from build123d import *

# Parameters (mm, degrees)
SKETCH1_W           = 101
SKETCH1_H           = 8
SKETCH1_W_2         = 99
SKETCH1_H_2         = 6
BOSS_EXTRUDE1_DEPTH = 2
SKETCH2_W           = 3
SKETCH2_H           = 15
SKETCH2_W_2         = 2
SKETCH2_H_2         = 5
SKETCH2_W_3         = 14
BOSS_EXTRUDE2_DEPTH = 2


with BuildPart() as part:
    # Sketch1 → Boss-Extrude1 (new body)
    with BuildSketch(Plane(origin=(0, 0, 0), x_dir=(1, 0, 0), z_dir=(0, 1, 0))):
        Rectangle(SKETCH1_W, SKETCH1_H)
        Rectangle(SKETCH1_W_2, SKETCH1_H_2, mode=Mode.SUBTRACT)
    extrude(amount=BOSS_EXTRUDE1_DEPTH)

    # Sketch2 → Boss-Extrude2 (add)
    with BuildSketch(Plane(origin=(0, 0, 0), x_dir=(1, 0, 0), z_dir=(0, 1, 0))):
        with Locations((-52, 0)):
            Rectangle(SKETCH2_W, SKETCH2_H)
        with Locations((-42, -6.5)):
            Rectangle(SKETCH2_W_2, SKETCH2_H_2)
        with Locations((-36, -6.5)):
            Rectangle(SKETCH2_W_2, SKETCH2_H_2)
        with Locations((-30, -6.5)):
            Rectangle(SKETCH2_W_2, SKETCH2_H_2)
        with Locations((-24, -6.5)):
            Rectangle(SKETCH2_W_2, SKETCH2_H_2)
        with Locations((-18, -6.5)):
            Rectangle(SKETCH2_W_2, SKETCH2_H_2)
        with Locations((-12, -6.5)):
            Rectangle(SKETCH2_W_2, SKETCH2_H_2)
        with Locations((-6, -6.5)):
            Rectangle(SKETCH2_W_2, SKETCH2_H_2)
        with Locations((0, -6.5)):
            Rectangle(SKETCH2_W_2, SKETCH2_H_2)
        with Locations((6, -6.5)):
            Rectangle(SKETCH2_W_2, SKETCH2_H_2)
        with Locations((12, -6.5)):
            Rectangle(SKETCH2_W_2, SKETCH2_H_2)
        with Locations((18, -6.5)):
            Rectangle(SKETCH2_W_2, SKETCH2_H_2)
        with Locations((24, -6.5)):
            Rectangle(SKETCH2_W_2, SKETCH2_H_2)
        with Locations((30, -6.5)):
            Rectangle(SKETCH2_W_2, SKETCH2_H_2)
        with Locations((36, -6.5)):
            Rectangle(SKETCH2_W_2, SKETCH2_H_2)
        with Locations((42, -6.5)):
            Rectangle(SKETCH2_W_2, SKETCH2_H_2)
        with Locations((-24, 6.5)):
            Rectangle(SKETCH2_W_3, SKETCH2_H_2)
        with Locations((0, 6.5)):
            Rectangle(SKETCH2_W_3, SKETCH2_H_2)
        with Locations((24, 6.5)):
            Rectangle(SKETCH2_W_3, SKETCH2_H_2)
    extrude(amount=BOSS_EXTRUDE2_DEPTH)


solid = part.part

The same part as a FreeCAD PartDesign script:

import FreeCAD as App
import Part
import Sketcher
from FreeCAD import Vector
Q = App.Units.Quantity

doc = App.newDocument("Part")
body = doc.addObject("PartDesign::Body", "Body")

sketch1 = body.newObject("Sketcher::SketchObject", "Sketch")
sketch1.AttachmentSupport = (doc.getObject("XZ_Plane"), [""])
sketch1.MapMode = "FlatFace"
sketch1.addGeometry(Part.LineSegment(Vector(-50, -4, 0), Vector(-50, 4, 0)), False)
sketch1.addGeometry(Part.LineSegment(Vector(-50, 4, 0), Vector(50, 4, 0)), False)
sketch1.addGeometry(Part.LineSegment(Vector(50, 4, 0), Vector(50, -4, 0)), False)
sketch1.addGeometry(Part.LineSegment(Vector(50, -4, 0), Vector(-50, -4, 0)), False)
sketch1.addGeometry(Part.LineSegment(Vector(50, 3, 0), Vector(-50, 3, 0)), False)
sketch1.addGeometry(Part.LineSegment(Vector(-50, 3, 0), Vector(-50, -3, 0)), False)
sketch1.addGeometry(Part.LineSegment(Vector(-50, -3, 0), Vector(50, -3, 0)), False)
sketch1.addGeometry(Part.LineSegment(Vector(50, -3, 0), Vector(50, 3, 0)), False)
sketch1.addConstraint(Sketcher.Constraint("Coincident", 0, 2, 1, 1))
sketch1.addConstraint(Sketcher.Constraint("Coincident", 1, 2, 2, 1))
sketch1.addConstraint(Sketcher.Constraint("Coincident", 2, 2, 3, 1))
sketch1.addConstraint(Sketcher.Constraint("Coincident", 3, 2, 0, 1))
sketch1.addConstraint(Sketcher.Constraint("Coincident", 4, 2, 5, 1))
sketch1.addConstraint(Sketcher.Constraint("Coincident", 5, 2, 6, 1))
sketch1.addConstraint(Sketcher.Constraint("Coincident", 6, 2, 7, 1))
sketch1.addConstraint(Sketcher.Constraint("Coincident", 7, 2, 4, 1))
sketch1.addConstraint(Sketcher.Constraint("Vertical", 0))
sketch1.addConstraint(Sketcher.Constraint("Horizontal", 1))
sketch1.addConstraint(Sketcher.Constraint("Vertical", 2))
sketch1.addConstraint(Sketcher.Constraint("Horizontal", 3))
sketch1.addConstraint(Sketcher.Constraint("Horizontal", 4))
sketch1.addConstraint(Sketcher.Constraint("Vertical", 5))
sketch1.addConstraint(Sketcher.Constraint("Horizontal", 6))
sketch1.addConstraint(Sketcher.Constraint("Vertical", 7))
sketch1.addConstraint(Sketcher.Constraint("Symmetric", 0, 2, 2, 2, -1, 1))
sketch1.addConstraint(Sketcher.Constraint("Symmetric", 4, 2, 6, 2, -1, 1))
sketch1.addConstraint(Sketcher.Constraint("DistanceX", 1, 1, 1, 2, Q("101 mm")))
sketch1.addConstraint(Sketcher.Constraint("DistanceX", 4, 2, 4, 1, Q("99 mm")))
sketch1.addConstraint(Sketcher.Constraint("DistanceY", 0, 1, 0, 2, Q("8 mm")))
sketch1.addConstraint(Sketcher.Constraint("DistanceY", 5, 2, 5, 1, Q("6 mm")))
pad1 = body.newObject("PartDesign::Pad", "Pad")
pad1.Profile = sketch1
pad1.Length = 2
pad1.Reversed = True

sketch2 = body.newObject("Sketcher::SketchObject", "Sketch001")
sketch2.AttachmentSupport = (doc.getObject("XZ_Plane"), [""])
sketch2.MapMode = "FlatFace"
sketch2.addGeometry(Part.LineSegment(Vector(-53.5, -7.5, 0), Vector(-53.5, 7.5, 0)), False)
sketch2.addGeometry(Part.LineSegment(Vector(-53.5, 7.5, 0), Vector(-50.5, 7.5, 0)), False)
sketch2.addGeometry(Part.LineSegment(Vector(-50.5, 7.5, 0), Vector(-50.5, -7.5, 0)), False)
sketch2.addGeometry(Part.LineSegment(Vector(-50.5, -7.5, 0), Vector(-53.5, -7.5, 0)), False)
sketch2.addGeometry(Part.LineSegment(Vector(-43, 4, 0), Vector(-43, 9, 0)), False)
sketch2.addGeometry(Part.LineSegment(Vector(-43, 9, 0), Vector(-41, 9, 0)), False)
sketch2.addGeometry(Part.LineSegment(Vector(-41, 9, 0), Vector(-41, 4, 0)), False)
sketch2.addGeometry(Part.LineSegment(Vector(-41, 4, 0), Vector(-43, 4, 0)), False)
sketch2.addGeometry(Part.LineSegment(Vector(-37, 4, 0), Vector(-37, 9, 0)), False)
sketch2.addGeometry(Part.LineSegment(Vector(-37, 9, 0), Vector(-35, 9, 0)), False)
sketch2.addGeometry(Part.LineSegment(Vector(-35, 9, 0), Vector(-35, 4, 0)), False)
sketch2.addGeometry(Part.LineSegment(Vector(-35, 4, 0), Vector(-37, 4, 0)), False)
sketch2.addGeometry(Part.LineSegment(Vector(-31, 4, 0), Vector(-31, 9, 0)), False)
sketch2.addGeometry(Part.LineSegment(Vector(-31, 9, 0), Vector(-29, 9, 0)), False)
sketch2.addGeometry(Part.LineSegment(Vector(-29, 9, 0), Vector(-29, 4, 0)), False)
sketch2.addGeometry(Part.LineSegment(Vector(-29, 4, 0), Vector(-31, 4, 0)), False)
sketch2.addGeometry(Part.LineSegment(Vector(-25, 4, 0), Vector(-25, 9, 0)), False)
sketch2.addGeometry(Part.LineSegment(Vector(-25, 9, 0), Vector(-23, 9, 0)), False)
sketch2.addGeometry(Part.LineSegment(Vector(-23, 9, 0), Vector(-23, 4, 0)), False)
sketch2.addGeometry(Part.LineSegment(Vector(-23, 4, 0), Vector(-25, 4, 0)), False)
sketch2.addGeometry(Part.LineSegment(Vector(-19, 4, 0), Vector(-19, 9, 0)), False)
sketch2.addGeometry(Part.LineSegment(Vector(-19, 9, 0), Vector(-17, 9, 0)), False)
sketch2.addGeometry(Part.LineSegment(Vector(-17, 9, 0), Vector(-17, 4, 0)), False)
sketch2.addGeometry(Part.LineSegment(Vector(-17, 4, 0), Vector(-19, 4, 0)), False)
sketch2.addGeometry(Part.LineSegment(Vector(-13, 4, 0), Vector(-13, 9, 0)), False)
sketch2.addGeometry(Part.LineSegment(Vector(-13, 9, 0), Vector(-11, 9, 0)), False)
sketch2.addGeometry(Part.LineSegment(Vector(-11, 9, 0), Vector(-11, 4, 0)), False)
sketch2.addGeometry(Part.LineSegment(Vector(-11, 4, 0), Vector(-13, 4, 0)), False)
sketch2.addGeometry(Part.LineSegment(Vector(-7, 4, 0), Vector(-7, 9, 0)), False)
sketch2.addGeometry(Part.LineSegment(Vector(-7, 9, 0), Vector(-5, 9, 0)), False)
sketch2.addGeometry(Part.LineSegment(Vector(-5, 9, 0), Vector(-5, 4, 0)), False)
sketch2.addGeometry(Part.LineSegment(Vector(-5, 4, 0), Vector(-7, 4, 0)), False)
sketch2.addGeometry(Part.LineSegment(Vector(-1, 4, 0), Vector(-1, 9, 0)), False)
sketch2.addGeometry(Part.LineSegment(Vector(-1, 9, 0), Vector(1, 9, 0)), False)
sketch2.addGeometry(Part.LineSegment(Vector(1, 9, 0), Vector(1, 4, 0)), False)
sketch2.addGeometry(Part.LineSegment(Vector(1, 4, 0), Vector(-1, 4, 0)), False)
sketch2.addGeometry(Part.LineSegment(Vector(5, 4, 0), Vector(5, 9, 0)), False)
sketch2.addGeometry(Part.LineSegment(Vector(5, 9, 0), Vector(7, 9, 0)), False)
sketch2.addGeometry(Part.LineSegment(Vector(7, 9, 0), Vector(7, 4, 0)), False)
sketch2.addGeometry(Part.LineSegment(Vector(7, 4, 0), Vector(5, 4, 0)), False)
sketch2.addGeometry(Part.LineSegment(Vector(11, 4, 0), Vector(11, 9, 0)), False)
sketch2.addGeometry(Part.LineSegment(Vector(11, 9, 0), Vector(13, 9, 0)), False)
sketch2.addGeometry(Part.LineSegment(Vector(13, 9, 0), Vector(13, 4, 0)), False)
sketch2.addGeometry(Part.LineSegment(Vector(13, 4, 0), Vector(11, 4, 0)), False)
sketch2.addGeometry(Part.LineSegment(Vector(17, 4, 0), Vector(17, 9, 0)), False)
sketch2.addGeometry(Part.LineSegment(Vector(17, 9, 0), Vector(19, 9, 0)), False)
sketch2.addGeometry(Part.LineSegment(Vector(19, 9, 0), Vector(19, 4, 0)), False)
sketch2.addGeometry(Part.LineSegment(Vector(19, 4, 0), Vector(17, 4, 0)), False)
sketch2.addGeometry(Part.LineSegment(Vector(23, 4, 0), Vector(23, 9, 0)), False)
sketch2.addGeometry(Part.LineSegment(Vector(23, 9, 0), Vector(25, 9, 0)), False)
sketch2.addGeometry(Part.LineSegment(Vector(25, 9, 0), Vector(25, 4, 0)), False)
sketch2.addGeometry(Part.LineSegment(Vector(25, 4, 0), Vector(23, 4, 0)), False)
sketch2.addGeometry(Part.LineSegment(Vector(29, 4, 0), Vector(29, 9, 0)), False)
sketch2.addGeometry(Part.LineSegment(Vector(29, 9, 0), Vector(31, 9, 0)), False)
sketch2.addGeometry(Part.LineSegment(Vector(31, 9, 0), Vector(31, 4, 0)), False)
sketch2.addGeometry(Part.LineSegment(Vector(31, 4, 0), Vector(29, 4, 0)), False)
sketch2.addGeometry(Part.LineSegment(Vector(35, 4, 0), Vector(35, 9, 0)), False)
sketch2.addGeometry(Part.LineSegment(Vector(35, 9, 0), Vector(37, 9, 0)), False)
sketch2.addGeometry(Part.LineSegment(Vector(37, 9, 0), Vector(37, 4, 0)), False)
sketch2.addGeometry(Part.LineSegment(Vector(37, 4, 0), Vector(35, 4, 0)), False)
sketch2.addGeometry(Part.LineSegment(Vector(41, 4, 0), Vector(41, 9, 0)), False)
sketch2.addGeometry(Part.LineSegment(Vector(41, 9, 0), Vector(43, 9, 0)), False)
sketch2.addGeometry(Part.LineSegment(Vector(43, 9, 0), Vector(43, 4, 0)), False)
sketch2.addGeometry(Part.LineSegment(Vector(43, 4, 0), Vector(41, 4, 0)), False)
sketch2.addGeometry(Part.LineSegment(Vector(-31, -9, 0), Vector(-31, -4, 0)), False)
sketch2.addGeometry(Part.LineSegment(Vector(-31, -4, 0), Vector(-17, -4, 0)), False)
sketch2.addGeometry(Part.LineSegment(Vector(-17, -4, 0), Vector(-17, -9, 0)), False)
sketch2.addGeometry(Part.LineSegment(Vector(-17, -9, 0), Vector(-31, -9, 0)), False)
sketch2.addGeometry(Part.LineSegment(Vector(-7, -9, 0), Vector(-7, -4, 0)), False)
sketch2.addGeometry(Part.LineSegment(Vector(-7, -4, 0), Vector(7, -4, 0)), False)
sketch2.addGeometry(Part.LineSegment(Vector(7, -4, 0), Vector(7, -9, 0)), False)
sketch2.addGeometry(Part.LineSegment(Vector(7, -9, 0), Vector(-7, -9, 0)), False)
sketch2.addGeometry(Part.LineSegment(Vector(17, -9, 0), Vector(17, -4, 0)), False)
sketch2.addGeometry(Part.LineSegment(Vector(17, -4, 0), Vector(31, -4, 0)), False)
sketch2.addGeometry(Part.LineSegment(Vector(31, -4, 0), Vector(31, -9, 0)), False)
sketch2.addGeometry(Part.LineSegment(Vector(31, -9, 0), Vector(17, -9, 0)), False)
sketch2.addConstraint(Sketcher.Constraint("Coincident", 0, 2, 1, 1))
sketch2.addConstraint(Sketcher.Constraint("Coincident", 1, 2, 2, 1))
sketch2.addConstraint(Sketcher.Constraint("Coincident", 2, 2, 3, 1))
sketch2.addConstraint(Sketcher.Constraint("Coincident", 3, 2, 0, 1))
sketch2.addConstraint(Sketcher.Constraint("Coincident", 4, 2, 5, 1))
sketch2.addConstraint(Sketcher.Constraint("Coincident", 5, 2, 6, 1))
sketch2.addConstraint(Sketcher.Constraint("Coincident", 6, 2, 7, 1))
sketch2.addConstraint(Sketcher.Constraint("Coincident", 7, 2, 4, 1))
sketch2.addConstraint(Sketcher.Constraint("Coincident", 8, 2, 9, 1))
sketch2.addConstraint(Sketcher.Constraint("Coincident", 9, 2, 10, 1))
sketch2.addConstraint(Sketcher.Constraint("Coincident", 10, 2, 11, 1))
sketch2.addConstraint(Sketcher.Constraint("Coincident", 11, 2, 8, 1))
sketch2.addConstraint(Sketcher.Constraint("Coincident", 12, 2, 13, 1))
sketch2.addConstraint(Sketcher.Constraint("Coincident", 13, 2, 14, 1))
sketch2.addConstraint(Sketcher.Constraint("Coincident", 14, 2, 15, 1))
sketch2.addConstraint(Sketcher.Constraint("Coincident", 15, 2, 12, 1))
sketch2.addConstraint(Sketcher.Constraint("Coincident", 16, 2, 17, 1))
sketch2.addConstraint(Sketcher.Constraint("Coincident", 17, 2, 18, 1))
sketch2.addConstraint(Sketcher.Constraint("Coincident", 18, 2, 19, 1))
sketch2.addConstraint(Sketcher.Constraint("Coincident", 19, 2, 16, 1))
sketch2.addConstraint(Sketcher.Constraint("Coincident", 20, 2, 21, 1))
sketch2.addConstraint(Sketcher.Constraint("Coincident", 21, 2, 22, 1))
sketch2.addConstraint(Sketcher.Constraint("Coincident", 22, 2, 23, 1))
sketch2.addConstraint(Sketcher.Constraint("Coincident", 23, 2, 20, 1))
sketch2.addConstraint(Sketcher.Constraint("Coincident", 24, 2, 25, 1))
sketch2.addConstraint(Sketcher.Constraint("Coincident", 25, 2, 26, 1))
sketch2.addConstraint(Sketcher.Constraint("Coincident", 26, 2, 27, 1))
sketch2.addConstraint(Sketcher.Constraint("Coincident", 27, 2, 24, 1))
sketch2.addConstraint(Sketcher.Constraint("Coincident", 28, 2, 29, 1))
sketch2.addConstraint(Sketcher.Constraint("Coincident", 29, 2, 30, 1))
sketch2.addConstraint(Sketcher.Constraint("Coincident", 30, 2, 31, 1))
sketch2.addConstraint(Sketcher.Constraint("Coincident", 31, 2, 28, 1))
sketch2.addConstraint(Sketcher.Constraint("Coincident", 32, 2, 33, 1))
sketch2.addConstraint(Sketcher.Constraint("Coincident", 33, 2, 34, 1))
sketch2.addConstraint(Sketcher.Constraint("Coincident", 34, 2, 35, 1))
sketch2.addConstraint(Sketcher.Constraint("Coincident", 35, 2, 32, 1))
sketch2.addConstraint(Sketcher.Constraint("Coincident", 36, 2, 37, 1))
sketch2.addConstraint(Sketcher.Constraint("Coincident", 37, 2, 38, 1))
sketch2.addConstraint(Sketcher.Constraint("Coincident", 38, 2, 39, 1))
sketch2.addConstraint(Sketcher.Constraint("Coincident", 39, 2, 36, 1))
sketch2.addConstraint(Sketcher.Constraint("Coincident", 40, 2, 41, 1))
sketch2.addConstraint(Sketcher.Constraint("Coincident", 41, 2, 42, 1))
sketch2.addConstraint(Sketcher.Constraint("Coincident", 42, 2, 43, 1))
sketch2.addConstraint(Sketcher.Constraint("Coincident", 43, 2, 40, 1))
sketch2.addConstraint(Sketcher.Constraint("Coincident", 44, 2, 45, 1))
sketch2.addConstraint(Sketcher.Constraint("Coincident", 45, 2, 46, 1))
sketch2.addConstraint(Sketcher.Constraint("Coincident", 46, 2, 47, 1))
sketch2.addConstraint(Sketcher.Constraint("Coincident", 47, 2, 44, 1))
sketch2.addConstraint(Sketcher.Constraint("Coincident", 48, 2, 49, 1))
sketch2.addConstraint(Sketcher.Constraint("Coincident", 49, 2, 50, 1))
sketch2.addConstraint(Sketcher.Constraint("Coincident", 50, 2, 51, 1))
sketch2.addConstraint(Sketcher.Constraint("Coincident", 51, 2, 48, 1))
sketch2.addConstraint(Sketcher.Constraint("Coincident", 52, 2, 53, 1))
sketch2.addConstraint(Sketcher.Constraint("Coincident", 53, 2, 54, 1))
sketch2.addConstraint(Sketcher.Constraint("Coincident", 54, 2, 55, 1))
sketch2.addConstraint(Sketcher.Constraint("Coincident", 55, 2, 52, 1))
sketch2.addConstraint(Sketcher.Constraint("Coincident", 56, 2, 57, 1))
sketch2.addConstraint(Sketcher.Constraint("Coincident", 57, 2, 58, 1))
sketch2.addConstraint(Sketcher.Constraint("Coincident", 58, 2, 59, 1))
sketch2.addConstraint(Sketcher.Constraint("Coincident", 59, 2, 56, 1))
sketch2.addConstraint(Sketcher.Constraint("Coincident", 60, 2, 61, 1))
sketch2.addConstraint(Sketcher.Constraint("Coincident", 61, 2, 62, 1))
sketch2.addConstraint(Sketcher.Constraint("Coincident", 62, 2, 63, 1))
sketch2.addConstraint(Sketcher.Constraint("Coincident", 63, 2, 60, 1))
sketch2.addConstraint(Sketcher.Constraint("Coincident", 64, 2, 65, 1))
sketch2.addConstraint(Sketcher.Constraint("Coincident", 65, 2, 66, 1))
sketch2.addConstraint(Sketcher.Constraint("Coincident", 66, 2, 67, 1))
sketch2.addConstraint(Sketcher.Constraint("Coincident", 67, 2, 64, 1))
sketch2.addConstraint(Sketcher.Constraint("Coincident", 68, 2, 69, 1))
sketch2.addConstraint(Sketcher.Constraint("Coincident", 69, 2, 70, 1))
sketch2.addConstraint(Sketcher.Constraint("Coincident", 70, 2, 71, 1))
sketch2.addConstraint(Sketcher.Constraint("Coincident", 71, 2, 68, 1))
sketch2.addConstraint(Sketcher.Constraint("Coincident", 72, 2, 73, 1))
sketch2.addConstraint(Sketcher.Constraint("Coincident", 73, 2, 74, 1))
sketch2.addConstraint(Sketcher.Constraint("Coincident", 74, 2, 75, 1))
sketch2.addConstraint(Sketcher.Constraint("Coincident", 75, 2, 72, 1))
sketch2.addConstraint(Sketcher.Constraint("Vertical", 0))
sketch2.addConstraint(Sketcher.Constraint("Horizontal", 1))
sketch2.addConstraint(Sketcher.Constraint("Vertical", 2))
sketch2.addConstraint(Sketcher.Constraint("Horizontal", 3))
sketch2.addConstraint(Sketcher.Constraint("Vertical", 4))
sketch2.addConstraint(Sketcher.Constraint("Horizontal", 5))
sketch2.addConstraint(Sketcher.Constraint("Vertical", 6))
sketch2.addConstraint(Sketcher.Constraint("Horizontal", 7))
sketch2.addConstraint(Sketcher.Constraint("Vertical", 8))
sketch2.addConstraint(Sketcher.Constraint("Horizontal", 9))
sketch2.addConstraint(Sketcher.Constraint("Vertical", 10))
sketch2.addConstraint(Sketcher.Constraint("Horizontal", 11))
sketch2.addConstraint(Sketcher.Constraint("Vertical", 12))
sketch2.addConstraint(Sketcher.Constraint("Horizontal", 13))
sketch2.addConstraint(Sketcher.Constraint("Vertical", 14))
sketch2.addConstraint(Sketcher.Constraint("Horizontal", 15))
sketch2.addConstraint(Sketcher.Constraint("Vertical", 16))
sketch2.addConstraint(Sketcher.Constraint("Horizontal", 17))
sketch2.addConstraint(Sketcher.Constraint("Vertical", 18))
sketch2.addConstraint(Sketcher.Constraint("Horizontal", 19))
sketch2.addConstraint(Sketcher.Constraint("Vertical", 20))
sketch2.addConstraint(Sketcher.Constraint("Horizontal", 21))
sketch2.addConstraint(Sketcher.Constraint("Vertical", 22))
sketch2.addConstraint(Sketcher.Constraint("Horizontal", 23))
sketch2.addConstraint(Sketcher.Constraint("Vertical", 24))
sketch2.addConstraint(Sketcher.Constraint("Horizontal", 25))
sketch2.addConstraint(Sketcher.Constraint("Vertical", 26))
sketch2.addConstraint(Sketcher.Constraint("Horizontal", 27))
sketch2.addConstraint(Sketcher.Constraint("Vertical", 28))
sketch2.addConstraint(Sketcher.Constraint("Horizontal", 29))
sketch2.addConstraint(Sketcher.Constraint("Vertical", 30))
sketch2.addConstraint(Sketcher.Constraint("Horizontal", 31))
sketch2.addConstraint(Sketcher.Constraint("Vertical", 32))
sketch2.addConstraint(Sketcher.Constraint("Horizontal", 33))
sketch2.addConstraint(Sketcher.Constraint("Vertical", 34))
sketch2.addConstraint(Sketcher.Constraint("Horizontal", 35))
sketch2.addConstraint(Sketcher.Constraint("Vertical", 36))
sketch2.addConstraint(Sketcher.Constraint("Horizontal", 37))
sketch2.addConstraint(Sketcher.Constraint("Vertical", 38))
sketch2.addConstraint(Sketcher.Constraint("Horizontal", 39))
sketch2.addConstraint(Sketcher.Constraint("Vertical", 40))
sketch2.addConstraint(Sketcher.Constraint("Horizontal", 41))
sketch2.addConstraint(Sketcher.Constraint("Vertical", 42))
sketch2.addConstraint(Sketcher.Constraint("Horizontal", 43))
sketch2.addConstraint(Sketcher.Constraint("Vertical", 44))
sketch2.addConstraint(Sketcher.Constraint("Horizontal", 45))
sketch2.addConstraint(Sketcher.Constraint("Vertical", 46))
sketch2.addConstraint(Sketcher.Constraint("Horizontal", 47))
sketch2.addConstraint(Sketcher.Constraint("Vertical", 48))
sketch2.addConstraint(Sketcher.Constraint("Horizontal", 49))
sketch2.addConstraint(Sketcher.Constraint("Vertical", 50))
sketch2.addConstraint(Sketcher.Constraint("Horizontal", 51))
sketch2.addConstraint(Sketcher.Constraint("Vertical", 52))
sketch2.addConstraint(Sketcher.Constraint("Horizontal", 53))
sketch2.addConstraint(Sketcher.Constraint("Vertical", 54))
sketch2.addConstraint(Sketcher.Constraint("Horizontal", 55))
sketch2.addConstraint(Sketcher.Constraint("Vertical", 56))
sketch2.addConstraint(Sketcher.Constraint("Horizontal", 57))
sketch2.addConstraint(Sketcher.Constraint("Vertical", 58))
sketch2.addConstraint(Sketcher.Constraint("Horizontal", 59))
sketch2.addConstraint(Sketcher.Constraint("Vertical", 60))
sketch2.addConstraint(Sketcher.Constraint("Horizontal", 61))
sketch2.addConstraint(Sketcher.Constraint("Vertical", 62))
sketch2.addConstraint(Sketcher.Constraint("Horizontal", 63))
sketch2.addConstraint(Sketcher.Constraint("Vertical", 64))
sketch2.addConstraint(Sketcher.Constraint("Horizontal", 65))
sketch2.addConstraint(Sketcher.Constraint("Vertical", 66))
sketch2.addConstraint(Sketcher.Constraint("Horizontal", 67))
sketch2.addConstraint(Sketcher.Constraint("Vertical", 68))
sketch2.addConstraint(Sketcher.Constraint("Horizontal", 69))
sketch2.addConstraint(Sketcher.Constraint("Vertical", 70))
sketch2.addConstraint(Sketcher.Constraint("Horizontal", 71))
sketch2.addConstraint(Sketcher.Constraint("Vertical", 72))
sketch2.addConstraint(Sketcher.Constraint("Horizontal", 73))
sketch2.addConstraint(Sketcher.Constraint("Vertical", 74))
sketch2.addConstraint(Sketcher.Constraint("Horizontal", 75))
sketch2.addConstraint(Sketcher.Constraint("Symmetric", 54, 2, 64, 2, -1, 1))
sketch2.addConstraint(Sketcher.Constraint("Symmetric", 47, 2, 65, 2, -1, 1))
sketch2.addConstraint(Sketcher.Constraint("Symmetric", 38, 2, 68, 2, -1, 1))
sketch2.addConstraint(Sketcher.Constraint("Symmetric", 31, 2, 69, 2, -1, 1))
sketch2.addConstraint(Sketcher.Constraint("Symmetric", 22, 2, 72, 2, -1, 1))
sketch2.addConstraint(Sketcher.Constraint("Symmetric", 15, 2, 73, 2, -1, 1))
sketch2.addConstraint(Sketcher.Constraint("Symmetric", 29, 2, 36, 2, -2))
sketch2.addConstraint(Sketcher.Constraint("Symmetric", 25, 2, 40, 2, -2))
sketch2.addConstraint(Sketcher.Constraint("Symmetric", 27, 2, 42, 2, -2))
sketch2.addConstraint(Sketcher.Constraint("Symmetric", 21, 2, 44, 2, -2))
sketch2.addConstraint(Sketcher.Constraint("Symmetric", 23, 2, 46, 2, -2))
sketch2.addConstraint(Sketcher.Constraint("Symmetric", 17, 2, 48, 2, -2))
sketch2.addConstraint(Sketcher.Constraint("Symmetric", 19, 2, 50, 2, -2))
sketch2.addConstraint(Sketcher.Constraint("Symmetric", 13, 2, 52, 2, -2))
sketch2.addConstraint(Sketcher.Constraint("Symmetric", 9, 2, 56, 2, -2))
sketch2.addConstraint(Sketcher.Constraint("Symmetric", 11, 2, 58, 2, -2))
sketch2.addConstraint(Sketcher.Constraint("Symmetric", 5, 2, 60, 2, -2))
sketch2.addConstraint(Sketcher.Constraint("Symmetric", 7, 2, 62, 2, -2))
sketch2.addConstraint(Sketcher.Constraint("Symmetric", 67, 2, 74, 2, -2))
sketch2.addConstraint(Sketcher.Constraint("Symmetric", 37, 2, 70, 2, -1))
sketch2.addConstraint(Sketcher.Constraint("Horizontal", 5, 2, 8, 2))
sketch2.addConstraint(Sketcher.Constraint("Horizontal", 7, 2, 10, 2))
sketch2.addConstraint(Sketcher.Constraint("Horizontal", 9, 2, 12, 2))
sketch2.addConstraint(Sketcher.Constraint("Horizontal", 11, 2, 14, 2))
sketch2.addConstraint(Sketcher.Constraint("Horizontal", 13, 2, 16, 2))
sketch2.addConstraint(Sketcher.Constraint("Horizontal", 15, 2, 18, 2))
sketch2.addConstraint(Sketcher.Constraint("Horizontal", 17, 2, 20, 2))
sketch2.addConstraint(Sketcher.Constraint("Horizontal", 21, 2, 24, 2))
sketch2.addConstraint(Sketcher.Constraint("Horizontal", 23, 2, 26, 2))
sketch2.addConstraint(Sketcher.Constraint("Horizontal", 25, 2, 28, 2))
sketch2.addConstraint(Sketcher.Constraint("Horizontal", 27, 2, 30, 2))
sketch2.addConstraint(Sketcher.Constraint("Horizontal", 29, 2, 32, 2))
sketch2.addConstraint(Sketcher.Constraint("Horizontal", 31, 2, 34, 2))
sketch2.addConstraint(Sketcher.Constraint("Horizontal", 67, 2, 70, 2))
sketch2.addConstraint(Sketcher.Constraint("Equal", 7, 9))
sketch2.addConstraint(Sketcher.Constraint("Equal", 11, 13))
sketch2.addConstraint(Sketcher.Constraint("Equal", 15, 17))
sketch2.addConstraint(Sketcher.Constraint("Equal", 19, 21))
sketch2.addConstraint(Sketcher.Constraint("Equal", 23, 25))
sketch2.addConstraint(Sketcher.Constraint("Equal", 27, 29))
sketch2.addConstraint(Sketcher.Constraint("Equal", 31, 33))
sketch2.addConstraint(Sketcher.Constraint("Equal", 67, 69))
sketch2.addConstraint(Sketcher.Constraint("DistanceX", 1, 1, 1, 2, Q("3 mm")))
sketch2.addConstraint(Sketcher.Constraint("DistanceX", 5, 1, 5, 2, Q("2 mm")))
sketch2.addConstraint(Sketcher.Constraint("DistanceX", 65, 1, 65, 2, Q("14 mm")))
sketch2.addConstraint(Sketcher.Constraint("DistanceY", 0, 1, 0, 2, Q("15 mm")))
sketch2.addConstraint(Sketcher.Constraint("DistanceY", 4, 1, 4, 2, Q("5 mm")))
sketch2.addConstraint(Sketcher.Constraint("DistanceX", 4, 2, -1, 1, Q("43 mm")))
sketch2.addConstraint(Sketcher.Constraint("DistanceY", -1, 1, 4, 2, Q("9 mm")))
sketch2.addConstraint(Sketcher.Constraint("DistanceX", 8, 2, -1, 1, Q("37 mm")))
sketch2.addConstraint(Sketcher.Constraint("DistanceX", 12, 2, -1, 1, Q("31 mm")))
sketch2.addConstraint(Sketcher.Constraint("DistanceX", 16, 2, -1, 1, Q("25 mm")))
sketch2.addConstraint(Sketcher.Constraint("DistanceX", 24, 2, -1, 1, Q("13 mm")))
sketch2.addConstraint(Sketcher.Constraint("DistanceX", 32, 2, -1, 1, Q("1 mm")))
sketch2.addConstraint(Sketcher.Constraint("DistanceX", 0, 2, -1, 1, Q("53.5 mm")))
sketch2.addConstraint(Sketcher.Constraint("DistanceY", -1, 1, 0, 2, Q("7.5 mm")))
pad2 = body.newObject("PartDesign::Pad", "Pad001")
pad2.Profile = sketch2
pad2.Length = 2
pad2.Reversed = True

doc.recompute()
